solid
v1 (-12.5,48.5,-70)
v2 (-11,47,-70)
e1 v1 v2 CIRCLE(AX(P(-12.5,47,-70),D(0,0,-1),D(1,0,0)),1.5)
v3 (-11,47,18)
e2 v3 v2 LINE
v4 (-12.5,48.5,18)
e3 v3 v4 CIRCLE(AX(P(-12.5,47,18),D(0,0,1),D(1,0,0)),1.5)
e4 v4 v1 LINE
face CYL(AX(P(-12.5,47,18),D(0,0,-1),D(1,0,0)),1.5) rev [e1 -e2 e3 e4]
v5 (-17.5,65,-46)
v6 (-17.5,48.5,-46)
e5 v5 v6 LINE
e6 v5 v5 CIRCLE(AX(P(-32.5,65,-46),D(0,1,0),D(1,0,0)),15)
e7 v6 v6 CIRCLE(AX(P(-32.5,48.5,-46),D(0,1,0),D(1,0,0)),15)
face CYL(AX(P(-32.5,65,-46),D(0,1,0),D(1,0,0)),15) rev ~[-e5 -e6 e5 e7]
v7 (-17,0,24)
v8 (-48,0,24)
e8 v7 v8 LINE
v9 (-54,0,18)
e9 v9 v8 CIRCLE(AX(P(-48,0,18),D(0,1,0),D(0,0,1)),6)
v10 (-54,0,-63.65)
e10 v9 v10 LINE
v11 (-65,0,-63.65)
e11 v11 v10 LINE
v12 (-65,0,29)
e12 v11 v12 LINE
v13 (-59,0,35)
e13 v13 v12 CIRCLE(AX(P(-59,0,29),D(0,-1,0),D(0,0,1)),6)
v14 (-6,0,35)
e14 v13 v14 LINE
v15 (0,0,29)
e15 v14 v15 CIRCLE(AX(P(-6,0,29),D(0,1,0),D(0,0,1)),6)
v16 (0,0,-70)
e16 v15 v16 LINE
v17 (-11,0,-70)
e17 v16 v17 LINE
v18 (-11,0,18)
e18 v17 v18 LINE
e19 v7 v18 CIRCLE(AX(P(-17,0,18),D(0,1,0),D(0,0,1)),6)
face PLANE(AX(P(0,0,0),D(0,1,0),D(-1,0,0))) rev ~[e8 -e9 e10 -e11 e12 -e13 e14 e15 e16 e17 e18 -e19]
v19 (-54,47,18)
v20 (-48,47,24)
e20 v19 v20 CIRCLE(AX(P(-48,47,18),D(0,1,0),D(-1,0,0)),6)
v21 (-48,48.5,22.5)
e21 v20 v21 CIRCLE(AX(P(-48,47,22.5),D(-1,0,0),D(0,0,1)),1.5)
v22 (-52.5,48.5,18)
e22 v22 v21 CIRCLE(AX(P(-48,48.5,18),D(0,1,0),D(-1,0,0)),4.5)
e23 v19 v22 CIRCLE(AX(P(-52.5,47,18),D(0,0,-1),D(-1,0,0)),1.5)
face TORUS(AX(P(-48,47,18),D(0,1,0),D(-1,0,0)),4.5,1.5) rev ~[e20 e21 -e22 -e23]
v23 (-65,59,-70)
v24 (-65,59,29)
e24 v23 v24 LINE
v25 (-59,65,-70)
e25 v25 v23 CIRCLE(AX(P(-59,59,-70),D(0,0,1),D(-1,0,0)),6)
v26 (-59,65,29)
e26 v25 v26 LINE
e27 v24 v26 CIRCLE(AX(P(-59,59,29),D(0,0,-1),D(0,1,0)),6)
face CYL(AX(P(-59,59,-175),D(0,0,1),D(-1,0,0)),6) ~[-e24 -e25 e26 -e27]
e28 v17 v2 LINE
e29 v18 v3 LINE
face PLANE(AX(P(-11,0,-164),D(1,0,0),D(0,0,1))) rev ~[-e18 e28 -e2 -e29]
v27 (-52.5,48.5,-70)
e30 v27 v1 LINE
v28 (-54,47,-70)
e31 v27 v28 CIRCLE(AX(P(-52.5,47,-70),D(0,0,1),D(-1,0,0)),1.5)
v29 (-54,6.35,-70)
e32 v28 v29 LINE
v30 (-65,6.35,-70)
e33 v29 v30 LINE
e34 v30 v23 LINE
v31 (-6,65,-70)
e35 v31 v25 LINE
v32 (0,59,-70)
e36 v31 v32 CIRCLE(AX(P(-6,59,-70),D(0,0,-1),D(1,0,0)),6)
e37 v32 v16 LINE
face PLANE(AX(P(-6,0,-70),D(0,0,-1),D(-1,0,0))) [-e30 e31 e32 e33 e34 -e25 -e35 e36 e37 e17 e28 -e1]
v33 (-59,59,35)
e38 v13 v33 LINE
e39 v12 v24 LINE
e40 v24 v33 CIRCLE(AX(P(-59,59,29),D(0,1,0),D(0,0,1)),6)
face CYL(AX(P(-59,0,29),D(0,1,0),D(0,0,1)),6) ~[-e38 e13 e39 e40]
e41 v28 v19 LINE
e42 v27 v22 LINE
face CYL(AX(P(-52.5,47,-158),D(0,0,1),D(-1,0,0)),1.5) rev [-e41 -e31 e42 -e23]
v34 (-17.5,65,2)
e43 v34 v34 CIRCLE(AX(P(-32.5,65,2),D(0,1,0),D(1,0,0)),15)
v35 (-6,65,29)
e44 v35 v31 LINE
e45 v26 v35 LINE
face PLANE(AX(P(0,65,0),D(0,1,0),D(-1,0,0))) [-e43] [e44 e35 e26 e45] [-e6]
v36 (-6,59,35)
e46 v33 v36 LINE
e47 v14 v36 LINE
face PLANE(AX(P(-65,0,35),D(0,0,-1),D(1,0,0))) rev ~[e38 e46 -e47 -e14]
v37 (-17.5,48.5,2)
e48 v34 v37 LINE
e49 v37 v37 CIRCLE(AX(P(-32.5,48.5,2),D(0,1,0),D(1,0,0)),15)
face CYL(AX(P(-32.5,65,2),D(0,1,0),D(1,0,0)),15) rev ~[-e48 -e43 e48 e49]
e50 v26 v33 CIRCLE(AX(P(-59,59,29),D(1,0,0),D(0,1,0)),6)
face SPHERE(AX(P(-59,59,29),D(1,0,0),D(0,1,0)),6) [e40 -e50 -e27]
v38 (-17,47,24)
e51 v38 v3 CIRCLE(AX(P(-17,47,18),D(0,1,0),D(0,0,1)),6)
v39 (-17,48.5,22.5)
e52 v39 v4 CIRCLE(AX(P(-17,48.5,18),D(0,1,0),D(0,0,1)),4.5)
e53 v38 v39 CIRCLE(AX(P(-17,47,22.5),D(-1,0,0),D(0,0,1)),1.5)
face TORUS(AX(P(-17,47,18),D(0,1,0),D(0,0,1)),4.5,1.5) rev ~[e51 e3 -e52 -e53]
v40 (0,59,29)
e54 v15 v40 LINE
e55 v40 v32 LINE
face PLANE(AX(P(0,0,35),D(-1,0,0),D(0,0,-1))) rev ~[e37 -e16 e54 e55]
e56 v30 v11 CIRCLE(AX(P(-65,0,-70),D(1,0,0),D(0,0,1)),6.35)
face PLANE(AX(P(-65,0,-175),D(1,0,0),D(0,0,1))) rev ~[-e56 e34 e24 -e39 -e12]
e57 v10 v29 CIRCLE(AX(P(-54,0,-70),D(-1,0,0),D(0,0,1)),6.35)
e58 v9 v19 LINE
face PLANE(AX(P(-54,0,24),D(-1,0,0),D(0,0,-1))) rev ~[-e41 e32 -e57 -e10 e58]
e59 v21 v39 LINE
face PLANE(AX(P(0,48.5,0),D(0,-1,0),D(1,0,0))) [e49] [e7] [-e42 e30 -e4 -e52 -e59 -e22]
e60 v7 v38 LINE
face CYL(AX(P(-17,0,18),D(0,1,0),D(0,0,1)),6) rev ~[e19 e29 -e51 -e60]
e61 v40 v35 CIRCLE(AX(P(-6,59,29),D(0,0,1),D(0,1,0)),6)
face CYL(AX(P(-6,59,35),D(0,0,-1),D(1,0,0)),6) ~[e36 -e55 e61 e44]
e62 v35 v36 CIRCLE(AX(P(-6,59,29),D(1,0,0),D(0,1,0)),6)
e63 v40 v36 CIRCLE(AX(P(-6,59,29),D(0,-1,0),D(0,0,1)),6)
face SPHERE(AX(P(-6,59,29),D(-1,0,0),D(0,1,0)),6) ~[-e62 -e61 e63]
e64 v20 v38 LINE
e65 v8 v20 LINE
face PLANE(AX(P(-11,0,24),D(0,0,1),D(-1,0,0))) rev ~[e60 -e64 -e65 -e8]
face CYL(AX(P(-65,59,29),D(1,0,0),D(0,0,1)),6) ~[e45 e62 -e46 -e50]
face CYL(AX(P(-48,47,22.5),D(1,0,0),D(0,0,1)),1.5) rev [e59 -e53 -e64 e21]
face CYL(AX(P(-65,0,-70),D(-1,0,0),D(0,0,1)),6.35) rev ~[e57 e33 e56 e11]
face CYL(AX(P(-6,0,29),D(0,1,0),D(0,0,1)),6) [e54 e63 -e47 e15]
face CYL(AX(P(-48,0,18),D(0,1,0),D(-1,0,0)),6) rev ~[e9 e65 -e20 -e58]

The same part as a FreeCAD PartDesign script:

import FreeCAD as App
import Part
import Sketcher

V = App.Vector


def edges_at(feature, points):
    """Names of the edges that pass closest to the given points."""
    edges = feature.Shape.Edges
    near = lambda p: min(range(len(edges)), key=lambda i: edges[i].distToShape(Part.Vertex(*p))[0])
    return sorted({f"Edge{near(p) + 1}" for p in points})


def add_polygon(sketch, points):
    """Adds a closed chain of lines whose ends are joined by coincident constraints."""
    first, n = sketch.GeometryCount, len(points)
    for a, b in zip(points, points[1:] + points[:1]):
        sketch.addGeometry(Part.LineSegment(App.Vector(*a, 0), App.Vector(*b, 0)), False)
    for i in range(n):
        sketch.addConstraint(Sketcher.Constraint("Coincident", first + i, 2, first + (i + 1) % n, 1))

doc = App.newDocument("Part")
body = doc.addObject("PartDesign::Body", "Body")

# Sketch on XZ plane
sketch1 = body.newObject("Sketcher::SketchObject", "Sketch")
sketch1.AttachmentSupport = (doc.getObject("XZ_Plane"), [""])
sketch1.MapMode = "FlatFace"
add_polygon(sketch1, [(-65, 35), (0, 35), (0, -175), (-65, -175)])  # lines 0-3
sketch1.addConstraint([
    Sketcher.Constraint("Horizontal", 0),
    Sketcher.Constraint("Vertical", 1),
    Sketcher.Constraint("Horizontal", 2),
    Sketcher.Constraint("Vertical", 3),
    Sketcher.Constraint("PointOnObject", 0, 2, -2),
    Sketcher.Constraint("DistanceX", 0, 1, 0, 2, 65.0),
    Sketcher.Constraint("DistanceY", 1, 2, 1, 1, 210.0),
    Sketcher.Constraint("DistanceY", -1, 1, 0, 2, 35.0),
])
pad1 = body.newObject("PartDesign::Pad", "Pad")
pad1.Profile = sketch1
pad1.Length = 65
pad1.Reversed = True

# Sketch on XZ plane
sketch2 = body.newObject("Sketcher::SketchObject", "Sketch001")
sketch2.AttachmentSupport = (doc.getObject("XZ_Plane"), [""])
sketch2.MapMode = "FlatFace"
sketch2.AttachmentOffset = App.Placement(V(0, 0, -65), App.Rotation())
sketch2.addGeometry([
    Part.Circle(V(-32, 2, 0), V(0, 0, 1), 15),
    Part.Circle(V(-32, -46, 0), V(0, 0, 1), 15),
    Part.Circle(V(-32, -94, 0), V(0, 0, 1), 15),
    Part.Circle(V(-32, -142, 0), V(0, 0, 1), 15),
], False)
sketch2.addConstraint([
    Sketcher.Constraint("Equal", 0, 1),
    Sketcher.Constraint("Equal", 1, 2),
    Sketcher.Constraint("Equal", 2, 3),
    Sketcher.Constraint("Vertical", 0, 3, 1, 3),
    Sketcher.Constraint("Vertical", 1, 3, 2, 3),
    Sketcher.Constraint("Vertical", 2, 3, 3, 3),
    Sketcher.Constraint("Diameter", 0, 30.0),
    Sketcher.Constraint("DistanceY", 1, 3, 0, 3, 48.0),
    Sketcher.Constraint("DistanceY", 2, 3, 1, 3, 48.0),
    Sketcher.Constraint("DistanceY", 3, 3, 2, 3, 48.0),
    Sketcher.Constraint("DistanceY", -1, 1, 0, 3, 2.0),
    Sketcher.Constraint("DistanceX", 0, 3, -1, 1, 32.5),
])
pocket1 = body.newObject("PartDesign::Pocket", "Pocket")
pocket1.Profile = sketch2
pocket1.Type = "UpToFirst"
pocket1.Reversed = True

# Sketch on XZ plane
sketch3 = body.newObject("Sketcher::SketchObject", "Sketch002")
sketch3.AttachmentSupport = (doc.getObject("XZ_Plane"), [""])
sketch3.MapMode = "FlatFace"
add_polygon(sketch3, [(-11, -164), (-11, 24), (-54, 24), (-54, -164)])  # lines 0-3
sketch3.addConstraint([
    Sketcher.Constraint("Vertical", 0),
    Sketcher.Constraint("Horizontal", 1),
    Sketcher.Constraint("Vertical", 2),
    Sketcher.Constraint("Horizontal", 3),
    Sketcher.Constraint("DistanceX", 1, 2, 1, 1, 43.0),
    Sketcher.Constraint("DistanceX", 0, 2, -1, 1, 11.0),
    Sketcher.Constraint("DistanceY", 0, 1, 0, 2, 188.0),
    Sketcher.Constraint("DistanceY", -1, 1, 0, 2, 24.0),
])
pocket2 = body.newObject("PartDesign::Pocket", "Pocket001")
pocket2.Profile = sketch3
pocket2.Length = 48.5
doc.recompute()

fillet = body.newObject("PartDesign::Fillet", "Fillet")
fillet.Base = (pocket2, edges_at(pocket2, [
    (-32.5, 65, 35),
    (-65, 65, -70),
    (0, 65, -70),
    (0, 32.5, 35),
    (-65, 32.5, 35),
    (0, 32.5, -175),
    (-32.5, 65, -175),
    (-65, 32.5, -175),
]))
fillet.Radius = 6

# Sketch on YZ plane
sketch4 = body.newObject("Sketcher::SketchObject", "Sketch003")
sketch4.AttachmentSupport = (doc.getObject("YZ_Plane"), [""])
sketch4.MapMode = "FlatFace"
sketch4.AttachmentOffset = App.Placement(V(0, 0, -65), App.Rotation())
sketch4.addGeometry(Part.Circle(V(0, -70, 0), V(0, 0, 1), 6), False)
sketch4.addConstraint([
    Sketcher.Constraint("PointOnObject", 0, 3, -2),
    Sketcher.Constraint("Diameter", 0, 12.7),
    Sketcher.Constraint("DistanceY", 0, 3, -1, 1, 70.0),
])
pocket3 = body.newObject("PartDesign::Pocket", "Pocket002")
pocket3.Profile = sketch4
pocket3.Length = 11
pocket3.Reversed = True
doc.recompute()

fillet2 = body.newObject("PartDesign::Fillet", "Fillet001")
fillet2.Base = (pocket3, edges_at(pocket3, [
    (-11, 24.25, 24),
    (-54, 24.25, 24),
    (-11, 24.25, -164),
    (-54, 24.25, -164),
]))
fillet2.Radius = 6
doc.recompute()

fillet3 = body.newObject("PartDesign::Fillet", "Fillet002")
fillet3.Base = (fillet2, edges_at(fillet2, [
    (-52.243, 48.5, 22.243),
    (-32.5, 48.5, 24),
    (-12.757, 48.5, 22.243),
    (-11, 48.5, -70),
    (-12.757, 48.5, -162.243),
    (-32.5, 48.5, -164),
    (-52.243, 48.5, -162.243),
    (-54, 48.5, -70),
]))
fillet3.Radius = 1.5

# Sketch on XY plane
sketch5 = body.newObject("Sketcher::SketchObject", "Sketch004")
sketch5.AttachmentSupport = (doc.getObject("XY_Plane"), [""])
sketch5.MapMode = "FlatFace"
sketch5.AttachmentOffset = App.Placement(V(0, 0, -175), App.Rotation())
add_polygon(sketch5, [(-90, -59), (-90, 98), (37, 98), (37, -59)])  # lines 0-3
sketch5.addConstraint([
    Sketcher.Constraint("Vertical", 0),
    Sketcher.Constraint("Horizontal", 1),
    Sketcher.Constraint("Vertical", 2),
    Sketcher.Constraint("Horizontal", 3),
    Sketcher.Constraint("DistanceX", 1, 1, 1, 2, 127.2655),
    Sketcher.Constraint("DistanceY", 0, 1, 0, 2, 157.3204),
    Sketcher.Constraint("DistanceX", -1, 1, 1, 2, 37.243),
    Sketcher.Constraint("DistanceY", 2, 2, -1, 1, 59.446),
])
pocket4 = body.newObject("PartDesign::Pocket", "Pocket003")
pocket4.Profile = sketch5
pocket4.Length = 105
pocket4.Reversed = True

doc.recompute()
